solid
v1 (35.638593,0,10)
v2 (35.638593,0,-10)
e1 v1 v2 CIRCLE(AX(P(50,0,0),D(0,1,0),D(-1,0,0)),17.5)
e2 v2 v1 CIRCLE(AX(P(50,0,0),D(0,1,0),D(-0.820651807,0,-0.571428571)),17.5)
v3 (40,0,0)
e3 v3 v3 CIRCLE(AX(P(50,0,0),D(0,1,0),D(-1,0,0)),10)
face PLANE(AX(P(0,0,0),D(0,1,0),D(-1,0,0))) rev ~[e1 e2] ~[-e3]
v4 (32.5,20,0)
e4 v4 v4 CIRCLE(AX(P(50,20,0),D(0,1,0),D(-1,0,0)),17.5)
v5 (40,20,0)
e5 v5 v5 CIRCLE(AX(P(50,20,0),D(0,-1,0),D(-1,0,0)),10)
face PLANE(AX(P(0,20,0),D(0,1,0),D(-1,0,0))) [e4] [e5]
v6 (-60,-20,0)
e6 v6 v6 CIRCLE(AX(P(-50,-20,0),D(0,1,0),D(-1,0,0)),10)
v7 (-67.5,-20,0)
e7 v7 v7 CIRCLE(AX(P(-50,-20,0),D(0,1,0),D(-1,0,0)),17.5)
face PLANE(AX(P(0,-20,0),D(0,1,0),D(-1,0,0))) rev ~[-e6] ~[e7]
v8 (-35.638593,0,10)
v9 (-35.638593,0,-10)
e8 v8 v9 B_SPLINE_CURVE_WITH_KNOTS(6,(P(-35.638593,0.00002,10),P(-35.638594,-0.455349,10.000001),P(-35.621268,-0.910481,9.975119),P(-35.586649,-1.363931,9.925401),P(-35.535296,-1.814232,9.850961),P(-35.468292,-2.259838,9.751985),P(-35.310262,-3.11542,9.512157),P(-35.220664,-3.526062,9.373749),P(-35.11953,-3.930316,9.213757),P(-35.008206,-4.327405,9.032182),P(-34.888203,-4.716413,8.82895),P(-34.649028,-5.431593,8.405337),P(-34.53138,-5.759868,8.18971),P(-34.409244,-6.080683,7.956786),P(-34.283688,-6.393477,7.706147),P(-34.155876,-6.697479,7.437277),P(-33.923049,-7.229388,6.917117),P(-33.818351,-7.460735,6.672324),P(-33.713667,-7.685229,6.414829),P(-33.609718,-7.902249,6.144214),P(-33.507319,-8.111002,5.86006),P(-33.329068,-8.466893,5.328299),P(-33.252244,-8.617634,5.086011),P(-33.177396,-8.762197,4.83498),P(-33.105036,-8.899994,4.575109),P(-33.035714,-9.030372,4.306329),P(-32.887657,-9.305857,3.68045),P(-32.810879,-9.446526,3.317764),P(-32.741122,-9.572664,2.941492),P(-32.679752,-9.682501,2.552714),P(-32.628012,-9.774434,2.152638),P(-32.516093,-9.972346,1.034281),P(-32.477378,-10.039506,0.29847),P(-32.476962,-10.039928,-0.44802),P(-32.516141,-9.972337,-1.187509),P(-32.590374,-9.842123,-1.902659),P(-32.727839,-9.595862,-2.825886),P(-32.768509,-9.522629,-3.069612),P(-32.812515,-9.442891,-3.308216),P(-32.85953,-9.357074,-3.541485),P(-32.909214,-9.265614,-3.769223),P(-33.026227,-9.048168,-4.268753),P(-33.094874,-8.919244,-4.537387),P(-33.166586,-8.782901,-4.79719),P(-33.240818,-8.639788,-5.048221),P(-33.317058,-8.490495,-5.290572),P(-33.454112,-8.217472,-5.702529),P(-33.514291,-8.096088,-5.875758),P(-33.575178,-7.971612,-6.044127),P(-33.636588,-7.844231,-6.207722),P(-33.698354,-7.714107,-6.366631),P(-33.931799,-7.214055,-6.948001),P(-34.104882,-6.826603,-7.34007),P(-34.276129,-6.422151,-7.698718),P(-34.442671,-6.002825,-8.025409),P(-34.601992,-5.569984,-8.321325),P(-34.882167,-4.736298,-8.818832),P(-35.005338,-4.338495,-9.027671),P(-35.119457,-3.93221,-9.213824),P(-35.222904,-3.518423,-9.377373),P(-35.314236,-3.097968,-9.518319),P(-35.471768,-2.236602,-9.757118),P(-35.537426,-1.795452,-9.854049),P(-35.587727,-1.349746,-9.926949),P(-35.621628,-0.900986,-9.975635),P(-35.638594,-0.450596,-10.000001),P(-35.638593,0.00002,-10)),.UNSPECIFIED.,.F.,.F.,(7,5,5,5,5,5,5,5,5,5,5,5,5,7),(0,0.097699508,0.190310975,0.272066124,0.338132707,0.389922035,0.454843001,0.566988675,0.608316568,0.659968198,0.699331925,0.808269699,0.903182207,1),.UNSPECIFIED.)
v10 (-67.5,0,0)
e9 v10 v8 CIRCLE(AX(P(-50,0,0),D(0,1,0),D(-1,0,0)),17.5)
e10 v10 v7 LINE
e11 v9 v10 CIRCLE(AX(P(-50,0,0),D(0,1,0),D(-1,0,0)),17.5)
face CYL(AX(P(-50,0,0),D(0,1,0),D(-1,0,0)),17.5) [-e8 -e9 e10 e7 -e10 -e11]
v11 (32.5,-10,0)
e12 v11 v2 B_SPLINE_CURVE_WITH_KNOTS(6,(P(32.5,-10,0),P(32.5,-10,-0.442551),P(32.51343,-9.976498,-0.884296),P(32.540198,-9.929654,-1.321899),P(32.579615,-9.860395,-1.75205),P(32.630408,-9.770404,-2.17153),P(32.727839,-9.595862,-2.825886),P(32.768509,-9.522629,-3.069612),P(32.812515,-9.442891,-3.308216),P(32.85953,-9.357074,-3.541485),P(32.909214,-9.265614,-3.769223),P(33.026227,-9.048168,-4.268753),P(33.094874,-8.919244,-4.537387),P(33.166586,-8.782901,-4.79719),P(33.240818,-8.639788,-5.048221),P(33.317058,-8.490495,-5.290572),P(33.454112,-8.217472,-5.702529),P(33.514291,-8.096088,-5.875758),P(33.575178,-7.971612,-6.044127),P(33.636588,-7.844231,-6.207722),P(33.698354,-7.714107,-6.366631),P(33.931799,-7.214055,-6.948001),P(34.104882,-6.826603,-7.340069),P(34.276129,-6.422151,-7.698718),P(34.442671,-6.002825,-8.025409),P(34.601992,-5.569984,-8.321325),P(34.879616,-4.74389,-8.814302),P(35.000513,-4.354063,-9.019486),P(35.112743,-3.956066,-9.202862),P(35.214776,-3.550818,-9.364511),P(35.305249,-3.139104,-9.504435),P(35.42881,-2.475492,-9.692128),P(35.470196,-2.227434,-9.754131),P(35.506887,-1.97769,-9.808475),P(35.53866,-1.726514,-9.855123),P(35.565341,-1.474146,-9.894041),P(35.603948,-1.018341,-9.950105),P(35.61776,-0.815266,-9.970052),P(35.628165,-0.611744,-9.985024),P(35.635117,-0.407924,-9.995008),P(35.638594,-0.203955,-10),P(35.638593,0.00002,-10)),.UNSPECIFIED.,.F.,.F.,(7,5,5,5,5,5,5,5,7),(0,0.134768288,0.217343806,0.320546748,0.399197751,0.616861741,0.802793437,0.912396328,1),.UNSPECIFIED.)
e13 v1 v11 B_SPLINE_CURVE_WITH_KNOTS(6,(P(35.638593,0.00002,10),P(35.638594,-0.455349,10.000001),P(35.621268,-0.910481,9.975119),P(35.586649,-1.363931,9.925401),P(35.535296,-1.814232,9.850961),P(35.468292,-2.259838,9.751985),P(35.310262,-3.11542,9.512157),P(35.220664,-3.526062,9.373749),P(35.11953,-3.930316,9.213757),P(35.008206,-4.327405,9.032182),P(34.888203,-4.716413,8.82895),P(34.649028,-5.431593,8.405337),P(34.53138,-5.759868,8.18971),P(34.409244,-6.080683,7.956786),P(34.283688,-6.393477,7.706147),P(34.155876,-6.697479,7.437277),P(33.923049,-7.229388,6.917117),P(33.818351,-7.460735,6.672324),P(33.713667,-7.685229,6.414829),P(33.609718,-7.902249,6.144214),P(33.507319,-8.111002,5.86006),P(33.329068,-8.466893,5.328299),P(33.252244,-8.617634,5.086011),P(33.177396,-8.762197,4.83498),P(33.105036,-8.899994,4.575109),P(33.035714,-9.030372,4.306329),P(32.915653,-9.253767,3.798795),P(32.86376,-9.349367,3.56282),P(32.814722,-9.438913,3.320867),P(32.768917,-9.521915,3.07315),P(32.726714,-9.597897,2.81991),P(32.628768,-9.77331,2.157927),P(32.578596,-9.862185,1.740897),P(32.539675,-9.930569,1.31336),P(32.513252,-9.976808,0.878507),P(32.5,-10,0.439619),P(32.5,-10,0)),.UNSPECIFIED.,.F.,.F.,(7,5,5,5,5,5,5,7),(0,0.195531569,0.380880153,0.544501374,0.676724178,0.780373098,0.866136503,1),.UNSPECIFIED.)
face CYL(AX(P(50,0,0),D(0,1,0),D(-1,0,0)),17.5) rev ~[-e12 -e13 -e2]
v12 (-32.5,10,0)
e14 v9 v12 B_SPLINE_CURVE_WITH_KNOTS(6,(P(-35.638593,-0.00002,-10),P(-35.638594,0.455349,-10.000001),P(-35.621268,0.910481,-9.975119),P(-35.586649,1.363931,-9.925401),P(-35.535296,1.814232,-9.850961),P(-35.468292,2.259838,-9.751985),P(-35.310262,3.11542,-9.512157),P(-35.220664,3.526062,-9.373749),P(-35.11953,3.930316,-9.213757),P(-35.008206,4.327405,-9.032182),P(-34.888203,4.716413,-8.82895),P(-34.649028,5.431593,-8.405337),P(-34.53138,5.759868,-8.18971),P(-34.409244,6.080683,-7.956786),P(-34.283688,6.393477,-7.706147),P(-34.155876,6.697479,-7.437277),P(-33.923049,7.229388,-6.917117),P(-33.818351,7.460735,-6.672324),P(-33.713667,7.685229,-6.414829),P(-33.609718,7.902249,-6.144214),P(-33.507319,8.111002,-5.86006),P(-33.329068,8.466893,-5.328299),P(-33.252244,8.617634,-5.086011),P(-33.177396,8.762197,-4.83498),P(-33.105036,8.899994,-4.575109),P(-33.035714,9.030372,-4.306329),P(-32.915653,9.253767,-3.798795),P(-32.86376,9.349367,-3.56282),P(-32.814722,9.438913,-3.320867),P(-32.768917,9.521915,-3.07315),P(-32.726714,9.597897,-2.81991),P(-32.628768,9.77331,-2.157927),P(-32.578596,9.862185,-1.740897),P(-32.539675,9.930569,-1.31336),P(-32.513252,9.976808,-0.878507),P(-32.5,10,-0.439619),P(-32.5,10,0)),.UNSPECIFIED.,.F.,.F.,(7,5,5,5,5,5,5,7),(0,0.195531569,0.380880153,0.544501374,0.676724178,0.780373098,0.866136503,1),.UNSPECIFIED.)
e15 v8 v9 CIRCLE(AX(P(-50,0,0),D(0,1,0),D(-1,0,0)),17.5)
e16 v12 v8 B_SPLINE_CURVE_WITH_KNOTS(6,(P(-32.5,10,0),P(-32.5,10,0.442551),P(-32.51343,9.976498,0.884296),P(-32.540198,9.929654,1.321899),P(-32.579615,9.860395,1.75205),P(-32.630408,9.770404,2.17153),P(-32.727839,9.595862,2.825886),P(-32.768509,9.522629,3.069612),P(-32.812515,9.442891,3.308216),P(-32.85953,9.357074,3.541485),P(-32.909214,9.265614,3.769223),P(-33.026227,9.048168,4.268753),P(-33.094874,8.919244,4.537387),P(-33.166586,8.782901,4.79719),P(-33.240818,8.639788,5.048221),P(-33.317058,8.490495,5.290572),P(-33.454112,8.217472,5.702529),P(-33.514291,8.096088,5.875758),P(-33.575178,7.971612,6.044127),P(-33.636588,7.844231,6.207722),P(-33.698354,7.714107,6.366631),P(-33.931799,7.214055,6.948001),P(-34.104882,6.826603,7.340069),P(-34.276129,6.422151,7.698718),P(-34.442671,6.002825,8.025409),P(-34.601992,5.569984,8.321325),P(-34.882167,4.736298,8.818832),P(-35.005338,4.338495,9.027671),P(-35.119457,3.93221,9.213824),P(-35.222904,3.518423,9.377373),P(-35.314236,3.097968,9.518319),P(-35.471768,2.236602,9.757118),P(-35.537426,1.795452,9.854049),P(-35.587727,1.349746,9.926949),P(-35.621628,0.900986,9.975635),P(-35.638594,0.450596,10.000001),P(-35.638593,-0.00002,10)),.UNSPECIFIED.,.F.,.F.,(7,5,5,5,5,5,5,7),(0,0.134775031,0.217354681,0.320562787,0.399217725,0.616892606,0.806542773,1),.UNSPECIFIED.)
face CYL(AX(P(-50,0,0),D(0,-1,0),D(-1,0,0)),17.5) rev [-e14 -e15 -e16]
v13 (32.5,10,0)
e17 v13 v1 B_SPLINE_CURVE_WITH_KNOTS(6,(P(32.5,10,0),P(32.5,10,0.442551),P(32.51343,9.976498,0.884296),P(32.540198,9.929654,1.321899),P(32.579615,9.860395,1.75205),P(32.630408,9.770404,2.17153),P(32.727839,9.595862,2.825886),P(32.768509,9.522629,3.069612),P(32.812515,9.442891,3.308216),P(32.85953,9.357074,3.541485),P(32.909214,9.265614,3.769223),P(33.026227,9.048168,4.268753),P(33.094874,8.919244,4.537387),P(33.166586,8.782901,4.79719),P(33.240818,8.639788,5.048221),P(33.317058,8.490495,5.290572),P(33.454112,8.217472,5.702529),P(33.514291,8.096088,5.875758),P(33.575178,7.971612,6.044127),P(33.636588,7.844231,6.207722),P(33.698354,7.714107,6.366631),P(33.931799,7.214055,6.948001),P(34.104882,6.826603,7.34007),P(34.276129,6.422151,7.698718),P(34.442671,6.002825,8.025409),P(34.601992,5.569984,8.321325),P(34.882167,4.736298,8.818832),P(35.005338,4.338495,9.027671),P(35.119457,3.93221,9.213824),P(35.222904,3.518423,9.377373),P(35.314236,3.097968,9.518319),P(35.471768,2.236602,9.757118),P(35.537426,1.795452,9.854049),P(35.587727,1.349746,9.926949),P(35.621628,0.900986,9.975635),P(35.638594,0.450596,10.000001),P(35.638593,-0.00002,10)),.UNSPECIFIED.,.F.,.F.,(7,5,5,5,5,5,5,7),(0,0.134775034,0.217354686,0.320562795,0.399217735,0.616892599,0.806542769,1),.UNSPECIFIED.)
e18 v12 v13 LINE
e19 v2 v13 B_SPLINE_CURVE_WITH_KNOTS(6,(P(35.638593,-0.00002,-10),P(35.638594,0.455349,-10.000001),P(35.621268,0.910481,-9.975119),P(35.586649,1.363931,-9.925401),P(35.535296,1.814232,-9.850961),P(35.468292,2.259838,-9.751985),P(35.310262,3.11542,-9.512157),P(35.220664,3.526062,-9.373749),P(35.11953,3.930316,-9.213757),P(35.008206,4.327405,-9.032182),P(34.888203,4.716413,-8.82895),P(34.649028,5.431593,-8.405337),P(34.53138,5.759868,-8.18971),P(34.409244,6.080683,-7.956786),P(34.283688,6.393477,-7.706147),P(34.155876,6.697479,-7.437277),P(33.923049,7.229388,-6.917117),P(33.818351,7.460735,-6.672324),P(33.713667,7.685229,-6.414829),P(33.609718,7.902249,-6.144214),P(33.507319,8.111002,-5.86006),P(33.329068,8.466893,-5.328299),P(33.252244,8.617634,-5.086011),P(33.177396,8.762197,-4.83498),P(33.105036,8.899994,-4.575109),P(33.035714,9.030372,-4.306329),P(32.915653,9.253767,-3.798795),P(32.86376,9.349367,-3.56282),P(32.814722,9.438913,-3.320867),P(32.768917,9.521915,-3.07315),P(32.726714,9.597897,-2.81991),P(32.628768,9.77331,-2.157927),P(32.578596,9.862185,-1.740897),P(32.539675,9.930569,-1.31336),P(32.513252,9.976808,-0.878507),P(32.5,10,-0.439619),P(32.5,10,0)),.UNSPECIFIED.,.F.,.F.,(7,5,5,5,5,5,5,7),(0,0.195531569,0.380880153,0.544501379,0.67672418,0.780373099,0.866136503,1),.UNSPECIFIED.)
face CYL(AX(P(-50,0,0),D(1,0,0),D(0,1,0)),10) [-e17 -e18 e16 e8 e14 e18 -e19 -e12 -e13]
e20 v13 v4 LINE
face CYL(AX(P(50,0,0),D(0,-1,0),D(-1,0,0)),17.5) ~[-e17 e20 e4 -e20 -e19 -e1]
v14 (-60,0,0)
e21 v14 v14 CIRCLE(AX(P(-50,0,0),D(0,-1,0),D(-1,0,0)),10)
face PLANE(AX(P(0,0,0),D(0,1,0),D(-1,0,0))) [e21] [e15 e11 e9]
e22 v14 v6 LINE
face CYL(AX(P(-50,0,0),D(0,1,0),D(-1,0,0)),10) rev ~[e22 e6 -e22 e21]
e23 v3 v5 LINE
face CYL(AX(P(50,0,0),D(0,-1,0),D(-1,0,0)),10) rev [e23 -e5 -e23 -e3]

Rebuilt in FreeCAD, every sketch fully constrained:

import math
import FreeCAD as App
import Part
import Sketcher
from FreeCAD import Vector
Q = App.Units.Quantity


def add_polygon(sketch, points):
    """Adds a closed chain of lines whose ends are joined by coincident constraints."""
    first, n = sketch.GeometryCount, len(points)
    for a, b in zip(points, points[1:] + points[:1]):
        sketch.addGeometry(Part.LineSegment(App.Vector(*a, 0), App.Vector(*b, 0)), False)
    for i in range(n):
        sketch.addConstraint(Sketcher.Constraint("Coincident", first + i, 2, first + (i + 1) % n, 1))

doc = App.newDocument("Part")
body = doc.addObject("PartDesign::Body", "Body")

# Sketch on XY plane
sketch1 = doc.addObject("Sketcher::SketchObject", "Sketch")
body.addObject(sketch1)
sketch1.AttachmentSupport = (doc.XY_Plane, [""])
sketch1.MapMode = "FlatFace"
add_polygon(sketch1, [(-50, 10), (-50, 0), (50, 0), (50, 10)])  # lines 0-3
sketch1.addConstraint(Sketcher.Constraint("Vertical", 0))
sketch1.addConstraint(Sketcher.Constraint("Horizontal", 1))
sketch1.addConstraint(Sketcher.Constraint("Vertical", 2))
sketch1.addConstraint(Sketcher.Constraint("Horizontal", 3))
sketch1.addConstraint(Sketcher.Constraint("Symmetric", 0, 2, 1, 2, -1, 1))
sketch1.addConstraint(Sketcher.Constraint("DistanceX", 1, 1, 1, 2, Q("100 mm")))
sketch1.addConstraint(Sketcher.Constraint("DistanceY", 0, 2, 0, 1, Q("10 mm")))
revolution = doc.addObject("PartDesign::Revolution", "Revolution")
body.addObject(revolution)
revolution.Profile = sketch1
revolution.ReferenceAxis = (sketch1, ["H_Axis"])
revolution.Angle = 360

# Sketch on XZ plane
sketch2 = doc.addObject("Sketcher::SketchObject", "Sketch001")
body.addObject(sketch2)
sketch2.AttachmentSupport = (doc.XZ_Plane, [""])
sketch2.MapMode = "FlatFace"
sketch2.addGeometry(Part.Circle(Vector(50, 0, 0), Vector(0, 0, 1), 18), False)
sketch2.addGeometry(Part.Circle(Vector(50, 0, 0), Vector(0, 0, 1), 10), False)
sketch2.addConstraint(Sketcher.Constraint("Coincident", 1, 3, 0, 3))
sketch2.addConstraint(Sketcher.Constraint("PointOnObject", 0, 3, -1))
sketch2.addConstraint(Sketcher.Constraint("Diameter", 0, Q("35 mm")))
sketch2.addConstraint(Sketcher.Constraint("Diameter", 1, Q("20 mm")))
sketch2.addConstraint(Sketcher.Constraint("DistanceX", -1, 1, 0, 3, Q("50 mm")))
pad1 = doc.addObject("PartDesign::Pad", "Pad")
body.addObject(pad1)
pad1.Profile = sketch2
pad1.Length = 20
pad1.Reversed = True

# Sketch on XZ plane
sketch3 = doc.addObject("Sketcher::SketchObject", "Sketch002")
body.addObject(sketch3)
sketch3.AttachmentSupport = (doc.XZ_Plane, [""])
sketch3.MapMode = "FlatFace"
sketch3.addGeometry(Part.Circle(Vector(50, 0, 0), Vector(0, 0, 1), 18), False)
sketch3.addGeometry(Part.LineSegment(Vector(50, 10, 0), Vector(50, -10, 0)), False)
sketch3.addGeometry(Part.ArcOfCircle(Part.Circle(Vector(50, 0, 0), Vector(0, 0, 1), 10), math.radians(-90), math.radians(90)), False)
sketch3.addConstraint(Sketcher.Constraint("Coincident", 1, 1, 2, 2))
sketch3.addConstraint(Sketcher.Constraint("Coincident", 2, 1, 1, 2))
sketch3.addConstraint(Sketcher.Constraint("Vertical", 1))
sketch3.addConstraint(Sketcher.Constraint("Coincident", 2, 3, 0, 3))
sketch3.addConstraint(Sketcher.Constraint("PointOnObject", 0, 3, -1))
sketch3.addConstraint(Sketcher.Constraint("Vertical", 2, 3, 1, 1))
sketch3.addConstraint(Sketcher.Constraint("Diameter", 0, Q("35 mm")))
sketch3.addConstraint(Sketcher.Constraint("Radius", 2, Q("10 mm")))
sketch3.addConstraint(Sketcher.Constraint("DistanceX", -1, 1, 0, 3, Q("50 mm")))
pocket1 = doc.addObject("PartDesign::Pocket", "Pocket")
body.addObject(pocket1)
pocket1.Profile = sketch3
pocket1.Length = 20
pocket1.Reversed = True

# Sketch on XZ plane
sketch4 = doc.addObject("Sketcher::SketchObject", "Sketch003")
body.addObject(sketch4)
sketch4.AttachmentSupport = (doc.XZ_Plane, [""])
sketch4.MapMode = "FlatFace"
sketch4.addGeometry(Part.ArcOfCircle(Part.Circle(Vector(50, 0, 0), Vector(0, 0, 1), 10), math.radians(90), math.radians(270)), False)
sketch4.addGeometry(Part.LineSegment(Vector(50, 10, 0), Vector(50, -10, 0)), False)
sketch4.addConstraint(Sketcher.Constraint("Coincident", 0, 1, 1, 1))
sketch4.addConstraint(Sketcher.Constraint("Coincident", 1, 2, 0, 2))
sketch4.addConstraint(Sketcher.Constraint("Vertical", 1))
sketch4.addConstraint(Sketcher.Constraint("PointOnObject", 0, 3, -1))
sketch4.addConstraint(Sketcher.Constraint("Radius", 0, Q("10 mm")))
sketch4.addConstraint(Sketcher.Constraint("DistanceX", -1, 1, 0, 3, Q("50 mm")))
sketch4.addConstraint(Sketcher.Constraint("DistanceX", -1, 1, 0, 1, Q("50 mm")))
pocket2 = doc.addObject("PartDesign::Pocket", "Pocket001")
body.addObject(pocket2)
pocket2.Profile = sketch4
pocket2.Length = 20

# Sketch on XZ plane
sketch5 = doc.addObject("Sketcher::SketchObject", "Sketch004")
body.addObject(sketch5)
sketch5.AttachmentSupport = (doc.XZ_Plane, [""])
sketch5.MapMode = "FlatFace"
sketch5.addGeometry(Part.Circle(Vector(-50, 0, 0), Vector(0, 0, 1), 18), False)
sketch5.addGeometry(Part.Circle(Vector(-50, 0, 0), Vector(0, 0, 1), 10), False)
sketch5.addConstraint(Sketcher.Constraint("Coincident", 1, 3, 0, 3))
sketch5.addConstraint(Sketcher.Constraint("PointOnObject", 0, 3, -1))
sketch5.addConstraint(Sketcher.Constraint("Diameter", 0, Q("35 mm")))
sketch5.addConstraint(Sketcher.Constraint("Diameter", 1, Q("20 mm")))
sketch5.addConstraint(Sketcher.Constraint("DistanceX", 0, 3, -1, 1, Q("50 mm")))
pad2 = doc.addObject("PartDesign::Pad", "Pad001")
body.addObject(pad2)
pad2.Profile = sketch5
pad2.Length = 20

# Sketch on XZ plane
sketch6 = doc.addObject("Sketcher::SketchObject", "Sketch005")
body.addObject(sketch6)
sketch6.AttachmentSupport = (doc.XZ_Plane, [""])
sketch6.MapMode = "FlatFace"
sketch6.addGeometry(Part.Circle(Vector(-50, 0, 0), Vector(0, 0, 1), 18), False)
sketch6.addGeometry(Part.LineSegment(Vector(-50, -10, 0), Vector(-50, 10, 0)), False)
sketch6.addGeometry(Part.ArcOfCircle(Part.Circle(Vector(-50, 0, 0), Vector(0, 0, 1), 10), math.radians(90), math.radians(270)), False)
sketch6.addConstraint(Sketcher.Constraint("Coincident", 1, 1, 2, 2))
sketch6.addConstraint(Sketcher.Constraint("Coincident", 2, 1, 1, 2))
sketch6.addConstraint(Sketcher.Constraint("Vertical", 1))
sketch6.addConstraint(Sketcher.Constraint("Coincident", 2, 3, 0, 3))
sketch6.addConstraint(Sketcher.Constraint("PointOnObject", 0, 3, -1))
sketch6.addConstraint(Sketcher.Constraint("Vertical", 2, 3, 1, 1))
sketch6.addConstraint(Sketcher.Constraint("Diameter", 0, Q("35 mm")))
sketch6.addConstraint(Sketcher.Constraint("Radius", 2, Q("10 mm")))
sketch6.addConstraint(Sketcher.Constraint("DistanceX", 0, 3, -1, 1, Q("50 mm")))
pocket3 = doc.addObject("PartDesign::Pocket", "Pocket002")
body.addObject(pocket3)
pocket3.Profile = sketch6
pocket3.Length = 20

# Sketch on XZ plane
sketch7 = doc.addObject("Sketcher::SketchObject", "Sketch006")
body.addObject(sketch7)
sketch7.AttachmentSupport = (doc.XZ_Plane, [""])
sketch7.MapMode = "FlatFace"
sketch7.addGeometry(Part.LineSegment(Vector(-50, -10, 0), Vector(-50, 10, 0)), False)
sketch7.addGeometry(Part.ArcOfCircle(Part.Circle(Vector(-50, 0, 0), Vector(0, 0, 1), 10), math.radians(-90), math.radians(90)), False)
sketch7.addConstraint(Sketcher.Constraint("Coincident", 0, 1, 1, 1))
sketch7.addConstraint(Sketcher.Constraint("Coincident", 1, 2, 0, 2))
sketch7.addConstraint(Sketcher.Constraint("Vertical", 0))
sketch7.addConstraint(Sketcher.Constraint("PointOnObject", 1, 3, -1))
sketch7.addConstraint(Sketcher.Constraint("Vertical", 1, 3, 0, 1))
sketch7.addConstraint(Sketcher.Constraint("Radius", 1, Q("10 mm")))
sketch7.addConstraint(Sketcher.Constraint("DistanceX", 1, 3, -1, 1, Q("50 mm")))
pocket4 = doc.addObject("PartDesign::Pocket", "Pocket003")
body.addObject(pocket4)
pocket4.Profile = sketch7
pocket4.Length = 20
pocket4.Reversed = True

doc.recompute()
